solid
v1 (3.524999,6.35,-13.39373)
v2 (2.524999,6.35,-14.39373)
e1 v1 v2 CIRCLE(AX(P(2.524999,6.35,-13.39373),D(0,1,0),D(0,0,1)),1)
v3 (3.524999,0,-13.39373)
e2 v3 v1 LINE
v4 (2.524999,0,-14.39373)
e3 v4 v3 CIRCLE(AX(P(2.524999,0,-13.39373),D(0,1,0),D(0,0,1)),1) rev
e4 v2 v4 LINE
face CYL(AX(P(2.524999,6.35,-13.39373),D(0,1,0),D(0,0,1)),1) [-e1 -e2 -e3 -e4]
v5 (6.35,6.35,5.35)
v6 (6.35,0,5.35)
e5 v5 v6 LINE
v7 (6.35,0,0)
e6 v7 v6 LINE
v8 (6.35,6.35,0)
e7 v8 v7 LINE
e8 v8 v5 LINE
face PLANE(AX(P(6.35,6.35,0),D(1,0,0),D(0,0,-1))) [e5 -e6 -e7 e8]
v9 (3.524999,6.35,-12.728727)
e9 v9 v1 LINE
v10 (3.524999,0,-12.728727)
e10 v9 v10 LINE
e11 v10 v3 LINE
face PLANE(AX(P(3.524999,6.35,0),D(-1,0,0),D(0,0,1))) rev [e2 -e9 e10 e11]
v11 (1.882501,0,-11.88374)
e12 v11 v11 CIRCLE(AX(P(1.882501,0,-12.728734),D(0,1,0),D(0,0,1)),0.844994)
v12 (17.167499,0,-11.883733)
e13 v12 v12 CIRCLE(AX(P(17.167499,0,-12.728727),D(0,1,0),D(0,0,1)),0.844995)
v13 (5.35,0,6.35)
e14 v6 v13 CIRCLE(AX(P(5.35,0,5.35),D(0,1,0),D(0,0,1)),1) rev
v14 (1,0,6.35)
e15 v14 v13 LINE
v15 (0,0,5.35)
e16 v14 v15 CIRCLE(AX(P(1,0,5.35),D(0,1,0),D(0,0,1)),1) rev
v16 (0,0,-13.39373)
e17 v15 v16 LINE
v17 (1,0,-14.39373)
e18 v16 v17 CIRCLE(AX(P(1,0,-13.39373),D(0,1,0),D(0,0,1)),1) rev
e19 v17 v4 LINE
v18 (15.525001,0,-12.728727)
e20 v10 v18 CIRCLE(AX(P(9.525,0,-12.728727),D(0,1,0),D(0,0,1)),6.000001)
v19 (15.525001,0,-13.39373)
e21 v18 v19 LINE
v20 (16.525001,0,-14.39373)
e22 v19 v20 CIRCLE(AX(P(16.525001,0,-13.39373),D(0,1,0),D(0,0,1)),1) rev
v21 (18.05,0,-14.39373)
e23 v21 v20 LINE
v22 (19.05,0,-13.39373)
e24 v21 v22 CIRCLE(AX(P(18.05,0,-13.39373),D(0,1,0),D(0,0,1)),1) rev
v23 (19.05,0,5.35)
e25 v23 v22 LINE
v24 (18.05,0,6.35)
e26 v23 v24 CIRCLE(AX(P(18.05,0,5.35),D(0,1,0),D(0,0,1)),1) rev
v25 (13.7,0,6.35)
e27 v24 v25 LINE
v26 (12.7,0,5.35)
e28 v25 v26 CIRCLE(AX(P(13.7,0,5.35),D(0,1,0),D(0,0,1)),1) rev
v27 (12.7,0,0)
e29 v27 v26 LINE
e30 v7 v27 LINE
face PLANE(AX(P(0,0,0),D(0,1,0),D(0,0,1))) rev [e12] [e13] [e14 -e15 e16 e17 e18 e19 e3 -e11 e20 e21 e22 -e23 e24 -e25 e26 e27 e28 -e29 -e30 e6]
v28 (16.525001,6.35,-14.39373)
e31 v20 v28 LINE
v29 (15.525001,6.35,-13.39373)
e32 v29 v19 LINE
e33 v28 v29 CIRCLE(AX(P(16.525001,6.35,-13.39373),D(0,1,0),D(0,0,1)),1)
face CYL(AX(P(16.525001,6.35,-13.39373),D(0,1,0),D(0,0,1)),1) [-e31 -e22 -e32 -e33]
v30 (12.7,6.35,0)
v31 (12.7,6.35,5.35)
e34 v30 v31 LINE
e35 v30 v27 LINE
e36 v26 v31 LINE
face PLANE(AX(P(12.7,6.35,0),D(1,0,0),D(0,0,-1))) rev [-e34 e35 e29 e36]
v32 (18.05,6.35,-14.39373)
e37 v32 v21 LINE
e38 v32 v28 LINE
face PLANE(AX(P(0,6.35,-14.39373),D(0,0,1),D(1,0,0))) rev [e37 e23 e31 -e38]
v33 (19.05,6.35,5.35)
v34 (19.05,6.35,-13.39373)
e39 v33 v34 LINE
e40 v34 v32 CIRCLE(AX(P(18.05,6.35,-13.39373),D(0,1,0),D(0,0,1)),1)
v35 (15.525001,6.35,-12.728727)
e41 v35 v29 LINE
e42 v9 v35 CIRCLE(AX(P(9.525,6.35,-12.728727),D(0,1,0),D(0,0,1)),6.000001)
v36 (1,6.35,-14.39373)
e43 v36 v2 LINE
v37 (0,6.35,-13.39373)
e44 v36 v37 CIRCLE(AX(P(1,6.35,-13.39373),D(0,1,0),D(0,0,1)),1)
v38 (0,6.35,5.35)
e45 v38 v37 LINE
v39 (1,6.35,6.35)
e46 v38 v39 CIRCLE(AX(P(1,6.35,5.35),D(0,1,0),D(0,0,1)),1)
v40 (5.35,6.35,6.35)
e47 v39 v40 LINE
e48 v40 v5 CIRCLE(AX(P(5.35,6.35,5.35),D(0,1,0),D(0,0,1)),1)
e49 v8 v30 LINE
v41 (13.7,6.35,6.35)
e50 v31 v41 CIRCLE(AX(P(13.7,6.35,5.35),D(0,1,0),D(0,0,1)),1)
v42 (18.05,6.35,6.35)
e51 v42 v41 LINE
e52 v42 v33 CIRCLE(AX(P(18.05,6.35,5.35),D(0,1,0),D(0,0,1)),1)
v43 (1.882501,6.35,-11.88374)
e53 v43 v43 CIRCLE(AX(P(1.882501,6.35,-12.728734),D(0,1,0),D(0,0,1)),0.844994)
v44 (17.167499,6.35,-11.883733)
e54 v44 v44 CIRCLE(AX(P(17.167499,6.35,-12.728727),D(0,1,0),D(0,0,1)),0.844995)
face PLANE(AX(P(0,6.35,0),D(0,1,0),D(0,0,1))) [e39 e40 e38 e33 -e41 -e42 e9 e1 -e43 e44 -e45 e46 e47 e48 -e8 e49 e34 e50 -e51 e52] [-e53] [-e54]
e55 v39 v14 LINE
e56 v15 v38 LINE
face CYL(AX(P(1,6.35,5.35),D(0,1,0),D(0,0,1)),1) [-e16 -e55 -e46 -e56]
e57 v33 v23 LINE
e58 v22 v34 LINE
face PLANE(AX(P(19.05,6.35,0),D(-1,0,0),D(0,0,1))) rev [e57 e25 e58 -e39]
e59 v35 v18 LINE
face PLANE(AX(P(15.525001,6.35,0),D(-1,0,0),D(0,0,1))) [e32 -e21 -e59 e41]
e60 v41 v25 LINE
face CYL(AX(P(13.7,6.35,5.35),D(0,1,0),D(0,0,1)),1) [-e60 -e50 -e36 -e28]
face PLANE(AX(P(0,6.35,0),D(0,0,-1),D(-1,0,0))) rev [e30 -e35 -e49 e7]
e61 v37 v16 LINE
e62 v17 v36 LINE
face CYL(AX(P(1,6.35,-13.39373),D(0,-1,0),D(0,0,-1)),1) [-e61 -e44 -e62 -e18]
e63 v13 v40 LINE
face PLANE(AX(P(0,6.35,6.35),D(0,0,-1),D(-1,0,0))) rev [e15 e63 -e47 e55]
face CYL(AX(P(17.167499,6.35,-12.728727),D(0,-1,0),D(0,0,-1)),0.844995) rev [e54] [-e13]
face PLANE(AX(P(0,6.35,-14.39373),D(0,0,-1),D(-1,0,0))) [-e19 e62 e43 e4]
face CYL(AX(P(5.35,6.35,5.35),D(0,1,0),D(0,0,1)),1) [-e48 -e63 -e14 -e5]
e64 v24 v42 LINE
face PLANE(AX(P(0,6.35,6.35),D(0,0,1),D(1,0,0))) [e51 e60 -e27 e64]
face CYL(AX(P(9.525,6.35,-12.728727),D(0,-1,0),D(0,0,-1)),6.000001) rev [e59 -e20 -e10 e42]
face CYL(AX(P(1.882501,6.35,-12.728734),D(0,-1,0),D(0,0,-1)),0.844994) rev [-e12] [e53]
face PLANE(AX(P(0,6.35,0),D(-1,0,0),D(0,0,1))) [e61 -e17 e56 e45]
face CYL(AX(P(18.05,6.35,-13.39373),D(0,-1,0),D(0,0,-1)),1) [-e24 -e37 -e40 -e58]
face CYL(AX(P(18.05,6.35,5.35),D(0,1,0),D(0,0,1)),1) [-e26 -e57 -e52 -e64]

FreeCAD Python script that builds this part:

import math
import FreeCAD as App
import Part
import Sketcher
from FreeCAD import Vector
Q = App.Units.Quantity


def edges_at(feature, points):
    """Names of the edges that pass closest to the given points."""
    edges = feature.Shape.Edges
    near = lambda p: min(range(len(edges)), key=lambda i: edges[i].distToShape(Part.Vertex(*p))[0])
    return sorted({f"Edge{near(p) + 1}" for p in points})

doc = App.newDocument("Part")
body = doc.addObject("PartDesign::Body", "Body")

sketch1 = body.newObject("Sketcher::SketchObject", "Sketch")
sketch1.AttachmentSupport = (doc.getObject("XZ_Plane"), [""])
sketch1.MapMode = "FlatFace"
sketch1.addGeometry(Part.LineSegment(Vector(0, -14.39373, 0), Vector(0, 6.35, 0)), False)
sketch1.addGeometry(Part.LineSegment(Vector(0, 6.35, 0), Vector(6.35, 6.35, 0)), False)
sketch1.addGeometry(Part.LineSegment(Vector(6.35, 6.35, 0), Vector(6.35, 0, 0)), False)
sketch1.addGeometry(Part.LineSegment(Vector(6.35, 0, 0), Vector(12.7, 0, 0)), False)
sketch1.addGeometry(Part.LineSegment(Vector(12.7, 0, 0), Vector(12.7, 6.35, 0)), False)
sketch1.addGeometry(Part.LineSegment(Vector(12.7, 6.35, 0), Vector(19.05, 6.35, 0)), False)
sketch1.addGeometry(Part.LineSegment(Vector(19.05, 6.35, 0), Vector(19.05, -14.39373, 0)), False)
sketch1.addGeometry(Part.LineSegment(Vector(19.05, -14.39373, 0), Vector(15.525001, -14.39373, 0)), False)
sketch1.addGeometry(Part.LineSegment(Vector(15.525001, -14.39373, 0), Vector(15.525001, -12.728727, 0)), False)
sketch1.addGeometry(Part.ArcOfCircle(Part.Circle(Vector(9.525, -12.728727, 0), Vector(0, 0, 1), 6.000001), math.radians(0), math.radians(180.000065)), False)
sketch1.addGeometry(Part.LineSegment(Vector(3.524999, -12.728734, 0), Vector(3.524999, -14.39373, 0)), False)
sketch1.addGeometry(Part.LineSegment(Vector(3.524999, -14.39373, 0), Vector(0, -14.39373, 0)), False)
sketch1.addGeometry(Part.Circle(Vector(17.167499, -12.728727, 0), Vector(0, 0, 1), 0.844994), False)
sketch1.addGeometry(Part.Circle(Vector(1.882501, -12.728734, 0), Vector(0, 0, 1), 0.844994), False)
sketch1.addConstraint(Sketcher.Constraint("Coincident", 0, 2, 1, 1))
sketch1.addConstraint(Sketcher.Constraint("Coincident", 1, 2, 2, 1))
sketch1.addConstraint(Sketcher.Constraint("Coincident", 2, 2, 3, 1))
sketch1.addConstraint(Sketcher.Constraint("Coincident", 3, 2, 4, 1))
sketch1.addConstraint(Sketcher.Constraint("Coincident", 4, 2, 5, 1))
sketch1.addConstraint(Sketcher.Constraint("Coincident", 5, 2, 6, 1))
sketch1.addConstraint(Sketcher.Constraint("Coincident", 6, 2, 7, 1))
sketch1.addConstraint(Sketcher.Constraint("Coincident", 7, 2, 8, 1))
sketch1.addConstraint(Sketcher.Constraint("Tangent", 8, 2, 9, 1))
sketch1.addConstraint(Sketcher.Constraint("Tangent", 9, 2, 10, 1))
sketch1.addConstraint(Sketcher.Constraint("Coincident", 10, 2, 11, 1))
sketch1.addConstraint(Sketcher.Constraint("Coincident", 11, 2, 0, 1))
sketch1.addConstraint(Sketcher.Constraint("Vertical", 0))
sketch1.addConstraint(Sketcher.Constraint("Horizontal", 1))
sketch1.addConstraint(Sketcher.Constraint("Vertical", 2))
sketch1.addConstraint(Sketcher.Constraint("Horizontal", 3))
sketch1.addConstraint(Sketcher.Constraint("Vertical", 4))
sketch1.addConstraint(Sketcher.Constraint("Horizontal", 5))
sketch1.addConstraint(Sketcher.Constraint("Vertical", 6))
sketch1.addConstraint(Sketcher.Constraint("Horizontal", 7))
sketch1.addConstraint(Sketcher.Constraint("Vertical", 8))
sketch1.addConstraint(Sketcher.Constraint("Vertical", 10))
sketch1.addConstraint(Sketcher.Constraint("Horizontal", 11))
sketch1.addConstraint(Sketcher.Constraint("Equal", 12, 13))
sketch1.addConstraint(Sketcher.Constraint("PointOnObject", 0, 2, -2))
sketch1.addConstraint(Sketcher.Constraint("PointOnObject", 2, 2, -1))
sketch1.addConstraint(Sketcher.Constraint("Horizontal", 9, 3, 12, 3))
sketch1.addConstraint(Sketcher.Constraint("Horizontal", 1, 2, 4, 2))
sketch1.addConstraint(Sketcher.Constraint("Horizontal", 13, 3, 9, 2))
sketch1.addConstraint(Sketcher.Constraint("Horizontal", 7, 2, 10, 2))
sketch1.addConstraint(Sketcher.Constraint("Equal", 1, 3))
sketch1.addConstraint(Sketcher.Constraint("Equal", 3, 5))
sketch1.addConstraint(Sketcher.Constraint("Equal", 7, 11))
sketch1.addConstraint(Sketcher.Constraint("Equal", 5, 2))
sketch1.addConstraint(Sketcher.Constraint("Radius", 9, Q("6.000001 mm")))
sketch1.addConstraint(Sketcher.Constraint("DistanceX", 1, 1, 1, 2, Q("6.35 mm")))
sketch1.addConstraint(Sketcher.Constraint("Diameter", 12, Q("1.689989 mm")))
sketch1.addConstraint(Sketcher.Constraint("DistanceX", 13, 3, 12, 3, Q("15.284999 mm")))
sketch1.addConstraint(Sketcher.Constraint("DistanceY", 0, 1, 0, 2, Q("20.74373 mm")))
sketch1.addConstraint(Sketcher.Constraint("DistanceX", -1, 1, 12, 3, Q("17.167499 mm")))
sketch1.addConstraint(Sketcher.Constraint("DistanceY", 8, 1, 8, 2, Q("1.665002 mm")))
pad1 = body.newObject("PartDesign::Pad", "Pad")
pad1.Profile = sketch1
pad1.Length = 6.35
pad1.Reversed = True
doc.recompute()

fillet = body.newObject("PartDesign::Fillet", "Fillet")
fillet.Base = (pad1, edges_at(pad1, [
    (19.05, 3.175, 6.35),
    (12.7, 3.175, 6.35),
    (6.35, 3.175, 6.35),
    (0, 3.175, 6.35),
    (0, 3.175, -14.394),
    (3.525, 3.175, -14.394),
    (15.525, 3.175, -14.394),
    (19.05, 3.175, -14.394),
]))
fillet.Radius = 1

doc.recompute()
